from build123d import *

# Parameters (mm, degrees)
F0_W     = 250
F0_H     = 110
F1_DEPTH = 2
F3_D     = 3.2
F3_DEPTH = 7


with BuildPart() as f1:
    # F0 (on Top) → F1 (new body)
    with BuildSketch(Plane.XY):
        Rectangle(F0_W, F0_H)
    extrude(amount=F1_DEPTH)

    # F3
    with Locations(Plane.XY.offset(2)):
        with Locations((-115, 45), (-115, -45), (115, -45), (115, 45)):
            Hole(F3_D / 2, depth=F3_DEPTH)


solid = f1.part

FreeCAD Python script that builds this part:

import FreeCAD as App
import Part
import Sketcher

V = App.Vector


def add_polygon(sketch, points):
    """Adds a closed chain of lines whose ends are joined by coincident constraints."""
    first, n = sketch.GeometryCount, len(points)
    for a, b in zip(points, points[1:] + points[:1]):
        sketch.addGeometry(Part.LineSegment(App.Vector(*a, 0), App.Vector(*b, 0)), False)
    for i in range(n):
        sketch.addConstraint(Sketcher.Constraint("Coincident", first + i, 2, first + (i + 1) % n, 1))

doc = App.newDocument("Part")
body = doc.addObject("PartDesign::Body", "Body")

# Sketch on XY plane
sketch1 = body.newObject("Sketcher::SketchObject", "Sketch")
sketch1.AttachmentSupport = (doc.getObject("XY_Plane"), [""])
sketch1.MapMode = "FlatFace"
add_polygon(sketch1, [(-125, 55), (-125, -55), (125, -55), (125, 55)])  # lines 0-3
sketch1.addConstraint(Sketcher.Constraint("Vertical", 0))
sketch1.addConstraint(Sketcher.Constraint("Horizontal", 1))
sketch1.addConstraint(Sketcher.Constraint("Vertical", 2))
sketch1.addConstraint(Sketcher.Constraint("Horizontal", 3))
sketch1.addConstraint(Sketcher.Constraint("Symmetric", 0, 2, 2, 2, -1, 1))
sketch1.addConstraint(Sketcher.Constraint("DistanceX", 1, 1, 1, 2, 250.0))
sketch1.addConstraint(Sketcher.Constraint("DistanceY", 0, 2, 0, 1, 110.0))
pad1 = body.newObject("PartDesign::Pad", "Pad")
pad1.Profile = sketch1
pad1.Length = 2

# Sketch on XY plane
sketch2 = body.newObject("Sketcher::SketchObject", "Sketch001")
sketch2.AttachmentSupport = (doc.getObject("XY_Plane"), [""])
sketch2.MapMode = "FlatFace"
sketch2.AttachmentOffset = App.Placement(V(0, 0, 2), App.Rotation())
sketch2.addGeometry(Part.Circle(V(-115, 45, 0), V(0, 0, 1), 1.6), False)
sketch2.addGeometry(Part.Circle(V(-115, -45, 0), V(0, 0, 1), 1.6), False)
sketch2.addGeometry(Part.Circle(V(115, -45, 0), V(0, 0, 1), 1.6), False)
sketch2.addGeometry(Part.Circle(V(115, 45, 0), V(0, 0, 1), 1.6), False)
sketch2.addConstraint(Sketcher.Constraint("Equal", 0, 1))
sketch2.addConstraint(Sketcher.Constraint("Equal", 1, 2))
sketch2.addConstraint(Sketcher.Constraint("Equal", 2, 3))
sketch2.addConstraint(Sketcher.Constraint("Symmetric", 0, 3, 2, 3, -1, 1))
sketch2.addConstraint(Sketcher.Constraint("Symmetric", 1, 3, 3, 3, -1, 1))
sketch2.addConstraint(Sketcher.Constraint("Symmetric", 1, 3, 2, 3, -2))
sketch2.addConstraint(Sketcher.Constraint("Diameter", 0, 3.2))
sketch2.addConstraint(Sketcher.Constraint("DistanceX", 0, 3, -1, 1, 115.0))
sketch2.addConstraint(Sketcher.Constraint("DistanceY", -1, 1, 0, 3, 45.0))
doc.recompute()
hole = body.newObject("PartDesign::Hole", "Hole")
hole.Profile = sketch2
hole.ThreadType = "None"
hole.Diameter = 3.2
hole.DepthType = "Dimension"
hole.Depth = 7
hole.DrillPoint = "Flat"

doc.recompute()
